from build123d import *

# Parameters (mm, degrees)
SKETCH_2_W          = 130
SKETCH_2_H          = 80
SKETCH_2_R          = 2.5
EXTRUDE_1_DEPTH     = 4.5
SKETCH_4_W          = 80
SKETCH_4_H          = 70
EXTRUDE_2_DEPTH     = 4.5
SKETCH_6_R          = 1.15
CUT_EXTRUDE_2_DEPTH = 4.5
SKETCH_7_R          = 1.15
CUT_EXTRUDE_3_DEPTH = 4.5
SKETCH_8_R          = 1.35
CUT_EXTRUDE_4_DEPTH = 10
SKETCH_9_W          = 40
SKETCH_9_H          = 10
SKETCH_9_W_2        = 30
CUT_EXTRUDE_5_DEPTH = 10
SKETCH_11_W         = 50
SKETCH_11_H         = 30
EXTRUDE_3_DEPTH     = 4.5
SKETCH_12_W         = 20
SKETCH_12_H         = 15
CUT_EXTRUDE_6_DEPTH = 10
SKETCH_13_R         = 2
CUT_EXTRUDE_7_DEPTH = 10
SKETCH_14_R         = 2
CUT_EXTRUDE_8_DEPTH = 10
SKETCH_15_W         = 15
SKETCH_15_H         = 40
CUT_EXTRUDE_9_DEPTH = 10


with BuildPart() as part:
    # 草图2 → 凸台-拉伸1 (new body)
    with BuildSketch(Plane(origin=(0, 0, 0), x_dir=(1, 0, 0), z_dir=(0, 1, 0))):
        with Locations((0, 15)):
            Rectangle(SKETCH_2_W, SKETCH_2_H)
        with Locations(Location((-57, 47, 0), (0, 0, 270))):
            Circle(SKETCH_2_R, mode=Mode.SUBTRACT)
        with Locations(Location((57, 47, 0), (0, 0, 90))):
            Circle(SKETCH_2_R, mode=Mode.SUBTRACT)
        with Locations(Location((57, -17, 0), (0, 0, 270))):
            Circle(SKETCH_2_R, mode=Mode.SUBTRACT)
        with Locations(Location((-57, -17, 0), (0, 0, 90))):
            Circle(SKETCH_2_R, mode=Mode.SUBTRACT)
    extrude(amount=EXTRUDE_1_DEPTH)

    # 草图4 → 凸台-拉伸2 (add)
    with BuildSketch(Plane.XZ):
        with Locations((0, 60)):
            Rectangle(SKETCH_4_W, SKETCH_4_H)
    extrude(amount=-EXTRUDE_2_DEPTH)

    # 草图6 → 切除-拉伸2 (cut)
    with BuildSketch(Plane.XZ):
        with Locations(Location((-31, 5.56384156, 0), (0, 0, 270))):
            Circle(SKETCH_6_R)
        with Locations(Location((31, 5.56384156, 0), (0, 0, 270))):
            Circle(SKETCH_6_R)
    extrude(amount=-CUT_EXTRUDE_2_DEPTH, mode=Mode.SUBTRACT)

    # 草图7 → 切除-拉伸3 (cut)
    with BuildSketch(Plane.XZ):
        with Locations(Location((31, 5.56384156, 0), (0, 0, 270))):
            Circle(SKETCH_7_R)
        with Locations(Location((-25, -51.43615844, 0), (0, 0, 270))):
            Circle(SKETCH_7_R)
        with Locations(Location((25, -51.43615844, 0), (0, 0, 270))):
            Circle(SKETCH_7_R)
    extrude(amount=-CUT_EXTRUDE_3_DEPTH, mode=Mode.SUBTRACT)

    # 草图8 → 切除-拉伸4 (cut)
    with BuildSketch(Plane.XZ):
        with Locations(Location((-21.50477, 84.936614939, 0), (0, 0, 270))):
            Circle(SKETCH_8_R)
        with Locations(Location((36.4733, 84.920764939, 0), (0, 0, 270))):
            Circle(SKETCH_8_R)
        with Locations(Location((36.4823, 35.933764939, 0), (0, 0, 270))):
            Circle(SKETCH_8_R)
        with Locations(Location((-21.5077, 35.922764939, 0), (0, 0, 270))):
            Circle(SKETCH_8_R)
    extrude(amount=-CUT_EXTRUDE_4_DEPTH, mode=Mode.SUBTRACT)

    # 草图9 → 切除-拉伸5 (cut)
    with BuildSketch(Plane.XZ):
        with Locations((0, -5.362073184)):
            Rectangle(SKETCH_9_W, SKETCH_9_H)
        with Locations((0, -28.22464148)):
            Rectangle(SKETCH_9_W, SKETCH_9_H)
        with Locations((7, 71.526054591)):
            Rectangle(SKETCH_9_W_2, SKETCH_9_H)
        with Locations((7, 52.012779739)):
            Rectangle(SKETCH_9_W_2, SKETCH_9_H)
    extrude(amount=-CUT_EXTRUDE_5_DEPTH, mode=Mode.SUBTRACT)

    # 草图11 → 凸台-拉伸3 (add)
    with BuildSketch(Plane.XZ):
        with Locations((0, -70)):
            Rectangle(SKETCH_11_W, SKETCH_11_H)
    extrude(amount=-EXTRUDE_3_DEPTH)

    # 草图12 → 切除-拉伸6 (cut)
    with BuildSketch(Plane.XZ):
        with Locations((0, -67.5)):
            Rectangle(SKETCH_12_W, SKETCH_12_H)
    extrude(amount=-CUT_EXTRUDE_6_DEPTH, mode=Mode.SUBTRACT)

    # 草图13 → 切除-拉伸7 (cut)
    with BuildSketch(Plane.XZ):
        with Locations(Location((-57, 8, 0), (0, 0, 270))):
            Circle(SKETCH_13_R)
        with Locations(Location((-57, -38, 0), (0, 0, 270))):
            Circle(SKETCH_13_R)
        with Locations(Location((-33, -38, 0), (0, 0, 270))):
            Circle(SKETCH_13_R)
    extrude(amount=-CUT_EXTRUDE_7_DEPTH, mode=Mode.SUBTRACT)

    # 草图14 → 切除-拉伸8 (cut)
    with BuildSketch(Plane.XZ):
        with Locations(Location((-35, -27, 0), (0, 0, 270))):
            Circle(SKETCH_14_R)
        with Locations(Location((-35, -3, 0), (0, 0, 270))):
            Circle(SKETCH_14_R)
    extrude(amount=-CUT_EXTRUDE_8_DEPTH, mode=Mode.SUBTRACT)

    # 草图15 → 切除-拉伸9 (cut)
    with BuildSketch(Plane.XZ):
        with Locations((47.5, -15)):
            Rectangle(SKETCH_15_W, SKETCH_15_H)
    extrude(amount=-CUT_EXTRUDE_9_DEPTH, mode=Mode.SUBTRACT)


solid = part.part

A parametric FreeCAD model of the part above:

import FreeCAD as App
import Part
import Sketcher
from FreeCAD import Vector
Q = App.Units.Quantity


def add_polygon(sketch, points):
    """Adds a closed chain of lines whose ends are joined by coincident constraints."""
    first, n = sketch.GeometryCount, len(points)
    for a, b in zip(points, points[1:] + points[:1]):
        sketch.addGeometry(Part.LineSegment(App.Vector(*a, 0), App.Vector(*b, 0)), False)
    for i in range(n):
        sketch.addConstraint(Sketcher.Constraint("Coincident", first + i, 2, first + (i + 1) % n, 1))

doc = App.newDocument("Part")
body = doc.addObject("PartDesign::Body", "Body")

# Sketch on XZ plane
sketch1 = body.newObject("Sketcher::SketchObject", "Sketch")
sketch1.AttachmentSupport = (doc.getObject("XZ_Plane"), [""])
sketch1.MapMode = "FlatFace"
add_polygon(sketch1, [(-65, -55), (-65, 25), (65, 25), (65, -55)])  # lines 0-3
sketch1.addGeometry(Part.Circle(Vector(-57, 17, 0), Vector(0, 0, 1), 2.5), False)  # 4
sketch1.addGeometry(Part.Circle(Vector(57, 17, 0), Vector(0, 0, 1), 2.5), False)  # 5
sketch1.addGeometry(Part.Circle(Vector(-57, -47, 0), Vector(0, 0, 1), 2.5), False)  # 6
sketch1.addGeometry(Part.Circle(Vector(57, -47, 0), Vector(0, 0, 1), 2.5), False)  # 7
sketch1.addConstraint([
    Sketcher.Constraint("Vertical", 0),
    Sketcher.Constraint("Horizontal", 1),
    Sketcher.Constraint("Vertical", 2),
    Sketcher.Constraint("Horizontal", 3),
    Sketcher.Constraint("Equal", 4, 5),
    Sketcher.Constraint("Equal", 5, 6),
    Sketcher.Constraint("Equal", 6, 7),
    Sketcher.Constraint("Symmetric", 4, 3, 5, 3, -2),
    Sketcher.Constraint("Symmetric", 6, 3, 7, 3, -2),
    Sketcher.Constraint("Vertical", 4, 3, 6, 3),
    Sketcher.Constraint("Diameter", 4, Q("5 mm")),
    Sketcher.Constraint("DistanceX", 1, 1, 1, 2, Q("130 mm")),
    Sketcher.Constraint("DistanceY", 0, 1, 0, 2, Q("80 mm")),
    Sketcher.Constraint("DistanceX", 4, 3, -1, 1, Q("57 mm")),
    Sketcher.Constraint("DistanceY", -1, 1, 4, 3, Q("17 mm")),
    Sketcher.Constraint("DistanceY", 6, 3, -1, 1, Q("47 mm")),
    Sketcher.Constraint("DistanceX", 0, 2, -1, 1, Q("65 mm")),
    Sketcher.Constraint("DistanceY", -1, 1, 0, 2, Q("25 mm")),
])
pad1 = body.newObject("PartDesign::Pad", "Pad")
pad1.Profile = sketch1
pad1.Length = 4.5
pad1.Reversed = True

# Sketch on XZ plane
sketch2 = body.newObject("Sketcher::SketchObject", "Sketch001")
sketch2.AttachmentSupport = (doc.getObject("XZ_Plane"), [""])
sketch2.MapMode = "FlatFace"
add_polygon(sketch2, [(-40, 95), (-40, 25), (40, 25), (40, 95)])  # lines 0-3
sketch2.addConstraint([
    Sketcher.Constraint("Vertical", 0),
    Sketcher.Constraint("Horizontal", 1),
    Sketcher.Constraint("Vertical", 2),
    Sketcher.Constraint("Horizontal", 3),
    Sketcher.Constraint("DistanceX", 1, 1, 1, 2, Q("80 mm")),
    Sketcher.Constraint("DistanceY", 0, 2, 0, 1, Q("70 mm")),
    Sketcher.Constraint("DistanceX", 0, 2, -1, 1, Q("40 mm")),
    Sketcher.Constraint("DistanceY", -1, 1, 0, 2, Q("25 mm")),
])
pad2 = body.newObject("PartDesign::Pad", "Pad001")
pad2.Profile = sketch2
pad2.Length = 4.5
pad2.Reversed = True

# Sketch on XZ plane
sketch3 = body.newObject("Sketcher::SketchObject", "Sketch002")
sketch3.AttachmentSupport = (doc.getObject("XZ_Plane"), [""])
sketch3.MapMode = "FlatFace"
sketch3.addGeometry([
    Part.Circle(Vector(-31, 5.6, 0), Vector(0, 0, 1), 1.1),
    Part.Circle(Vector(31, 5.6, 0), Vector(0, 0, 1), 1.1),
], False)
sketch3.addConstraint([
    Sketcher.Constraint("Equal", 0, 1),
    Sketcher.Constraint("Symmetric", 0, 3, 1, 3, -2),
    Sketcher.Constraint("Diameter", 0, Q("2.3 mm")),
    Sketcher.Constraint("DistanceX", 0, 3, -1, 1, Q("31 mm")),
    Sketcher.Constraint("DistanceY", -1, 1, 0, 3, Q("5.563842 mm")),
])
pocket1 = body.newObject("PartDesign::Pocket", "Pocket")
pocket1.Profile = sketch3
pocket1.Length = 4.5

# Sketch on XZ plane
sketch4 = body.newObject("Sketcher::SketchObject", "Sketch003")
sketch4.AttachmentSupport = (doc.getObject("XZ_Plane"), [""])
sketch4.MapMode = "FlatFace"
sketch4.addGeometry([
    Part.Circle(Vector(31, 5.6, 0), Vector(0, 0, 1), 1.1),
    Part.Circle(Vector(-25, -51.4, 0), Vector(0, 0, 1), 1.1),
    Part.Circle(Vector(25, -51.4, 0), Vector(0, 0, 1), 1.1),
], False)
sketch4.addConstraint([
    Sketcher.Constraint("Equal", 0, 1),
    Sketcher.Constraint("Equal", 1, 2),
    Sketcher.Constraint("Symmetric", 1, 3, 2, 3, -2),
    Sketcher.Constraint("Diameter", 0, Q("2.3 mm")),
    Sketcher.Constraint("DistanceX", -1, 1, 0, 3, Q("31 mm")),
    Sketcher.Constraint("DistanceX", 1, 3, -1, 1, Q("25 mm")),
    Sketcher.Constraint("DistanceY", 1, 3, 0, 3, Q("57 mm")),
    Sketcher.Constraint("DistanceY", -1, 1, 0, 3, Q("5.563842 mm")),
])
pocket2 = body.newObject("PartDesign::Pocket", "Pocket001")
pocket2.Profile = sketch4
pocket2.Length = 4.5

# Sketch on XZ plane
sketch5 = body.newObject("Sketcher::SketchObject", "Sketch004")
sketch5.AttachmentSupport = (doc.getObject("XZ_Plane"), [""])
sketch5.MapMode = "FlatFace"
sketch5.addGeometry([
    Part.Circle(Vector(-21.5, 84.9, 0), Vector(0, 0, 1), 1.4),
    Part.Circle(Vector(36.5, 84.9, 0), Vector(0, 0, 1), 1.4),
    Part.Circle(Vector(36.5, 35.9, 0), Vector(0, 0, 1), 1.4),
    Part.Circle(Vector(-21.5, 35.9, 0), Vector(0, 0, 1), 1.4),
], False)
sketch5.addConstraint([
    Sketcher.Constraint("Equal", 0, 1),
    Sketcher.Constraint("Equal", 1, 2),
    Sketcher.Constraint("Equal", 2, 3),
    Sketcher.Constraint("Diameter", 0, Q("2.7 mm")),
    Sketcher.Constraint("DistanceX", 3, 3, 2, 3, Q("57.99 mm")),
    Sketcher.Constraint("DistanceX", 1, 3, 2, 3, Q("0.009 mm")),
    Sketcher.Constraint("DistanceY", 2, 3, 1, 3, Q("48.987 mm")),
    Sketcher.Constraint("DistanceY", 3, 3, 2, 3, Q("0.011 mm")),
    Sketcher.Constraint("DistanceX", -1, 1, 1, 3, Q("36.4733 mm")),
    Sketcher.Constraint("DistanceX", 0, 3, -1, 1, Q("21.50477 mm")),
    Sketcher.Constraint("DistanceY", 1, 3, 0, 3, Q("0.01585 mm")),
    Sketcher.Constraint("DistanceY", -1, 1, 0, 3, Q("84.936615 mm")),
])
pocket3 = body.newObject("PartDesign::Pocket", "Pocket002")
pocket3.Profile = sketch5
pocket3.Length = 10

# Sketch on XZ plane
sketch6 = body.newObject("Sketcher::SketchObject", "Sketch005")
sketch6.AttachmentSupport = (doc.getObject("XZ_Plane"), [""])
sketch6.MapMode = "FlatFace"
add_polygon(sketch6, [(-20, 0), (-20, -10), (20, -10), (20, 0)])  # lines 0-3
add_polygon(sketch6, [(-20, -23), (-20, -33), (20, -33), (20, -23)])  # lines 4-7
add_polygon(sketch6, [(-8, 77), (-8, 67), (22, 67), (22, 77)])  # lines 8-11
add_polygon(sketch6, [(-8, 57), (-8, 47), (22, 47), (22, 57)])  # lines 12-15
sketch6.addConstraint([
    Sketcher.Constraint("Vertical", 0),
    Sketcher.Constraint("Horizontal", 1),
    Sketcher.Constraint("Vertical", 2),
    Sketcher.Constraint("Horizontal", 3),
    Sketcher.Constraint("Vertical", 4),
    Sketcher.Constraint("Horizontal", 5),
    Sketcher.Constraint("Vertical", 6),
    Sketcher.Constraint("Horizontal", 7),
    Sketcher.Constraint("Vertical", 8),
    Sketcher.Constraint("Horizontal", 9),
    Sketcher.Constraint("Vertical", 10),
    Sketcher.Constraint("Horizontal", 11),
    Sketcher.Constraint("Vertical", 12),
    Sketcher.Constraint("Horizontal", 13),
    Sketcher.Constraint("Vertical", 14),
    Sketcher.Constraint("Horizontal", 15),
    Sketcher.Constraint("Vertical", 3, 2, 4, 2),
    Sketcher.Constraint("Vertical", 2, 2, 5, 2),
    Sketcher.Constraint("Vertical", 11, 2, 12, 2),
    Sketcher.Constraint("Vertical", 10, 2, 13, 2),
    Sketcher.Constraint("Equal", 2, 4),
    Sketcher.Constraint("Equal", 6, 8),
    Sketcher.Constraint("Equal", 10, 12),
    Sketcher.Constraint("DistanceX", 1, 1, 1, 2, Q("40 mm")),
    Sketcher.Constraint("DistanceX", 9, 1, 9, 2, Q("30 mm")),
    Sketcher.Constraint("DistanceY", 0, 2, 0, 1, Q("10 mm")),
    Sketcher.Constraint("DistanceX", 0, 2, -1, 1, Q("20 mm")),
    Sketcher.Constraint("DistanceX", 8, 2, -1, 1, Q("8 mm")),
    Sketcher.Constraint("DistanceY", 4, 2, -1, 1, Q("33.224641 mm")),
    Sketcher.Constraint("DistanceY", -1, 1, 12, 2, Q("47.01278 mm")),
    Sketcher.Constraint("DistanceY", 4, 2, 0, 2, Q("22.862568 mm")),
    Sketcher.Constraint("DistanceY", -1, 1, 8, 2, Q("66.526055 mm")),
])
pocket4 = body.newObject("PartDesign::Pocket", "Pocket003")
pocket4.Profile = sketch6
pocket4.Length = 10

# Sketch on XZ plane
sketch7 = body.newObject("Sketcher::SketchObject", "Sketch006")
sketch7.AttachmentSupport = (doc.getObject("XZ_Plane"), [""])
sketch7.MapMode = "FlatFace"
add_polygon(sketch7, [(-25, -55), (-25, -85), (25, -85), (25, -55)])  # lines 0-3
sketch7.addConstraint([
    Sketcher.Constraint("Vertical", 0),
    Sketcher.Constraint("Horizontal", 1),
    Sketcher.Constraint("Vertical", 2),
    Sketcher.Constraint("Horizontal", 3),
    Sketcher.Constraint("DistanceX", 1, 1, 1, 2, Q("50 mm")),
    Sketcher.Constraint("DistanceY", 0, 2, 0, 1, Q("30 mm")),
    Sketcher.Constraint("DistanceX", 0, 2, -1, 1, Q("25 mm")),
    Sketcher.Constraint("DistanceY", 0, 2, -1, 1, Q("85 mm")),
])
pad3 = body.newObject("PartDesign::Pad", "Pad002")
pad3.Profile = sketch7
pad3.Length = 4.5
pad3.Reversed = True

# Sketch on XZ plane
sketch8 = body.newObject("Sketcher::SketchObject", "Sketch007")
sketch8.AttachmentSupport = (doc.getObject("XZ_Plane"), [""])
sketch8.MapMode = "FlatFace"
add_polygon(sketch8, [(-10, -60), (-10, -75), (10, -75), (10, -60)])  # lines 0-3
sketch8.addConstraint([
    Sketcher.Constraint("Vertical", 0),
    Sketcher.Constraint("Horizontal", 1),
    Sketcher.Constraint("Vertical", 2),
    Sketcher.Constraint("Horizontal", 3),
    Sketcher.Constraint("DistanceX", 1, 1, 1, 2, Q("20 mm")),
    Sketcher.Constraint("DistanceY", 0, 2, 0, 1, Q("15 mm")),
    Sketcher.Constraint("DistanceX", 0, 2, -1, 1, Q("10 mm")),
    Sketcher.Constraint("DistanceY", 0, 2, -1, 1, Q("75 mm")),
])
pocket5 = body.newObject("PartDesign::Pocket", "Pocket004")
pocket5.Profile = sketch8
pocket5.Length = 10

# Sketch on XZ plane
sketch9 = body.newObject("Sketcher::SketchObject", "Sketch008")
sketch9.AttachmentSupport = (doc.getObject("XZ_Plane"), [""])
sketch9.MapMode = "FlatFace"
sketch9.addGeometry([
    Part.Circle(Vector(-57, 8, 0), Vector(0, 0, 1), 2),
    Part.Circle(Vector(-57, -38, 0), Vector(0, 0, 1), 2),
    Part.Circle(Vector(-33, -38, 0), Vector(0, 0, 1), 2),
], False)
sketch9.addConstraint([
    Sketcher.Constraint("Equal", 0, 1),
    Sketcher.Constraint("Equal", 1, 2),
    Sketcher.Constraint("Horizontal", 1, 3, 2, 3),
    Sketcher.Constraint("Vertical", 0, 3, 1, 3),
    Sketcher.Constraint("Diameter", 0, Q("4 mm")),
    Sketcher.Constraint("DistanceX", 0, 3, -1, 1, Q("57 mm")),
    Sketcher.Constraint("DistanceY", -1, 1, 0, 3, Q("8 mm")),
    Sketcher.Constraint("DistanceY", 1, 3, -1, 1, Q("38 mm")),
    Sketcher.Constraint("DistanceX", 2, 3, -1, 1, Q("33 mm")),
])
pocket6 = body.newObject("PartDesign::Pocket", "Pocket005")
pocket6.Profile = sketch9
pocket6.Length = 10

# Sketch on XZ plane
sketch10 = body.newObject("Sketcher::SketchObject", "Sketch009")
sketch10.AttachmentSupport = (doc.getObject("XZ_Plane"), [""])
sketch10.MapMode = "FlatFace"
sketch10.addGeometry([
    Part.Circle(Vector(-35, -27, 0), Vector(0, 0, 1), 2),
    Part.Circle(Vector(-35, -3, 0), Vector(0, 0, 1), 2),
], False)
sketch10.addConstraint([
    Sketcher.Constraint("Equal", 0, 1),
    Sketcher.Constraint("Vertical", 0, 3, 1, 3),
    Sketcher.Constraint("Diameter", 0, Q("4 mm")),
    Sketcher.Constraint("DistanceX", 0, 3, -1, 1, Q("35 mm")),
    Sketcher.Constraint("DistanceY", 0, 3, -1, 1, Q("27 mm")),
    Sketcher.Constraint("DistanceY", 1, 3, -1, 1, Q("3 mm")),
])
pocket7 = body.newObject("PartDesign::Pocket", "Pocket006")
pocket7.Profile = sketch10
pocket7.Length = 10

# Sketch on XZ plane
sketch11 = body.newObject("Sketcher::SketchObject", "Sketch010")
sketch11.AttachmentSupport = (doc.getObject("XZ_Plane"), [""])
sketch11.MapMode = "FlatFace"
add_polygon(sketch11, [(40, 5), (40, -35), (55, -35), (55, 5)])  # lines 0-3
sketch11.addConstraint([
    Sketcher.Constraint("Vertical", 0),
    Sketcher.Constraint("Horizontal", 1),
    Sketcher.Constraint("Vertical", 2),
    Sketcher.Constraint("Horizontal", 3),
    Sketcher.Constraint("DistanceX", 1, 1, 1, 2, Q("15 mm")),
    Sketcher.Constraint("DistanceY", 0, 2, 0, 1, Q("40 mm")),
    Sketcher.Constraint("DistanceX", -1, 1, 0, 2, Q("40 mm")),
    Sketcher.Constraint("DistanceY", 0, 2, -1, 1, Q("35 mm")),
])
pocket8 = body.newObject("PartDesign::Pocket", "Pocket007")
pocket8.Profile = sketch11
pocket8.Length = 10

doc.recompute()
